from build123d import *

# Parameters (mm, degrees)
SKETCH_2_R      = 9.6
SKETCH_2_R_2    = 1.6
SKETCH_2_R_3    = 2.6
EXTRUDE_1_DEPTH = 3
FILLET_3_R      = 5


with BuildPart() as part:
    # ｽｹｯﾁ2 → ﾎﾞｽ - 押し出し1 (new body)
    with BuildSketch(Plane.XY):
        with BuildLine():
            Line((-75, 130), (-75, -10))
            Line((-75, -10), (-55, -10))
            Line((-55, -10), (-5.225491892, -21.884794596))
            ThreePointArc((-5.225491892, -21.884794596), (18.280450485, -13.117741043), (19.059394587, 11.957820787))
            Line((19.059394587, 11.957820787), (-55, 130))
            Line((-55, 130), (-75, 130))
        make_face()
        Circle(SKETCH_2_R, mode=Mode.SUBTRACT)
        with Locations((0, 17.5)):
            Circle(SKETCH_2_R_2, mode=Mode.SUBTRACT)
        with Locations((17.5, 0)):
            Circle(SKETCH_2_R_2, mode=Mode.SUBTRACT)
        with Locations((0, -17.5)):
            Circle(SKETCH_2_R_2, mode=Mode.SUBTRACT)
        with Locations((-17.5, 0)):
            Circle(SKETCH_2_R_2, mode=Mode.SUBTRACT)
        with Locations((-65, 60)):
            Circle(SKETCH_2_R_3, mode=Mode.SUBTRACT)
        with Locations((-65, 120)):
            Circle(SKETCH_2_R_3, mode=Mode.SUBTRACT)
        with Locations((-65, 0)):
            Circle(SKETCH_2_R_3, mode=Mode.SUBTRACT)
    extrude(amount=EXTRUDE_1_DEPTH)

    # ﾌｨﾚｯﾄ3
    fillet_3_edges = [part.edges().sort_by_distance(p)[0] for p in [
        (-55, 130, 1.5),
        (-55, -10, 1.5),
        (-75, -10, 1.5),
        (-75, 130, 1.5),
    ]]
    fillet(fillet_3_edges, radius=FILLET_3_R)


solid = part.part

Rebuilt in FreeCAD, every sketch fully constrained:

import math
import FreeCAD as App
import Part
import Sketcher
from FreeCAD import Vector
Q = App.Units.Quantity


def edges_at(feature, points):
    """Names of the edges that pass closest to the given points."""
    edges = feature.Shape.Edges
    near = lambda p: min(range(len(edges)), key=lambda i: edges[i].distToShape(Part.Vertex(*p))[0])
    return sorted({f"Edge{near(p) + 1}" for p in points})

doc = App.newDocument("Part")
body = doc.addObject("PartDesign::Body", "Body")

sketch1 = body.newObject("Sketcher::SketchObject", "Sketch")
sketch1.AttachmentSupport = (doc.getObject("XY_Plane"), [""])
sketch1.MapMode = "FlatFace"
sketch1.addGeometry(Part.LineSegment(Vector(-75, 130, 0), Vector(-75, -10, 0)), False)
sketch1.addGeometry(Part.LineSegment(Vector(-75, -10, 0), Vector(-55, -10, 0)), False)
sketch1.addGeometry(Part.LineSegment(Vector(-55, -10, 0), Vector(-5.2, -21.9, 0)), False)
sketch1.addGeometry(Part.ArcOfCircle(Part.Circle(Vector(0, 0, 0), Vector(0, 0, 1), 22.5), math.radians(-103), math.radians(32)), False)
sketch1.addGeometry(Part.LineSegment(Vector(19.1, 12, 0), Vector(-55, 130, 0)), False)
sketch1.addGeometry(Part.LineSegment(Vector(-55, 130, 0), Vector(-75, 130, 0)), False)
sketch1.addGeometry(Part.Circle(Vector(-65, 0, 0), Vector(0, 0, 1), 2.6), False)
sketch1.addGeometry(Part.Circle(Vector(-17.5, 0, 0), Vector(0, 0, 1), 1.6), False)
sketch1.addGeometry(Part.Circle(Vector(0, -17.5, 0), Vector(0, 0, 1), 1.6), False)
sketch1.addGeometry(Part.Circle(Vector(0, 0, 0), Vector(0, 0, 1), 9.6), False)
sketch1.addGeometry(Part.Circle(Vector(17.5, 0, 0), Vector(0, 0, 1), 1.6), False)
sketch1.addGeometry(Part.Circle(Vector(0, 17.5, 0), Vector(0, 0, 1), 1.6), False)
sketch1.addGeometry(Part.Circle(Vector(-65, 60, 0), Vector(0, 0, 1), 2.6), False)
sketch1.addGeometry(Part.Circle(Vector(-65, 120, 0), Vector(0, 0, 1), 2.6), False)
sketch1.addConstraint(Sketcher.Constraint("Coincident", 0, 2, 1, 1))
sketch1.addConstraint(Sketcher.Constraint("Coincident", 1, 2, 2, 1))
sketch1.addConstraint(Sketcher.Constraint("Tangent", 2, 2, 3, 1))
sketch1.addConstraint(Sketcher.Constraint("Tangent", 3, 2, 4, 1))
sketch1.addConstraint(Sketcher.Constraint("Coincident", 4, 2, 5, 1))
sketch1.addConstraint(Sketcher.Constraint("Coincident", 5, 2, 0, 1))
sketch1.addConstraint(Sketcher.Constraint("Vertical", 0))
sketch1.addConstraint(Sketcher.Constraint("Horizontal", 1))
sketch1.addConstraint(Sketcher.Constraint("Horizontal", 5))
sketch1.addConstraint(Sketcher.Constraint("Coincident", 3, 3, -1, 1))
sketch1.addConstraint(Sketcher.Constraint("Coincident", 9, 3, -1, 1))
sketch1.addConstraint(Sketcher.Constraint("Equal", 7, 8))
sketch1.addConstraint(Sketcher.Constraint("Equal", 8, 10))
sketch1.addConstraint(Sketcher.Constraint("Equal", 10, 11))
sketch1.addConstraint(Sketcher.Constraint("Equal", 6, 12))
sketch1.addConstraint(Sketcher.Constraint("Equal", 12, 13))
sketch1.addConstraint(Sketcher.Constraint("Symmetric", 7, 3, 10, 3, -1, 1))
sketch1.addConstraint(Sketcher.Constraint("Symmetric", 8, 3, 11, 3, -1, 1))
sketch1.addConstraint(Sketcher.Constraint("PointOnObject", 6, 3, -1))
sketch1.addConstraint(Sketcher.Constraint("PointOnObject", 7, 3, -1))
sketch1.addConstraint(Sketcher.Constraint("PointOnObject", 8, 3, -2))
sketch1.addConstraint(Sketcher.Constraint("Vertical", 6, 3, 12, 3))
sketch1.addConstraint(Sketcher.Constraint("Vertical", 12, 3, 13, 3))
sketch1.addConstraint(Sketcher.Constraint("Vertical", 1, 2, 4, 2))
sketch1.addConstraint(Sketcher.Constraint("Diameter", 6, Q("5.2 mm")))
sketch1.addConstraint(Sketcher.Constraint("Diameter", 7, Q("3.2 mm")))
sketch1.addConstraint(Sketcher.Constraint("Diameter", 9, Q("19.2 mm")))
sketch1.addConstraint(Sketcher.Constraint("Radius", 3, Q("22.5 mm")))
sketch1.addConstraint(Sketcher.Constraint("DistanceX", 1, 1, 1, 2, Q("20 mm")))
sketch1.addConstraint(Sketcher.Constraint("DistanceY", 0, 2, 0, 1, Q("140 mm")))
sketch1.addConstraint(Sketcher.Constraint("DistanceX", 6, 3, -1, 1, Q("65 mm")))
sketch1.addConstraint(Sketcher.Constraint("DistanceY", -1, 1, 12, 3, Q("60 mm")))
sketch1.addConstraint(Sketcher.Constraint("DistanceY", -1, 1, 13, 3, Q("120 mm")))
sketch1.addConstraint(Sketcher.Constraint("DistanceX", 0, 2, -1, 1, Q("75 mm")))
sketch1.addConstraint(Sketcher.Constraint("DistanceY", 0, 2, -1, 1, Q("10 mm")))
sketch1.addConstraint(Sketcher.Constraint("DistanceX", 7, 3, 10, 3, Q("35 mm")))
sketch1.addConstraint(Sketcher.Constraint("DistanceY", 8, 3, 11, 3, Q("35 mm")))
pad1 = body.newObject("PartDesign::Pad", "Pad")
pad1.Profile = sketch1
pad1.Length = 3
doc.recompute()

fillet = body.newObject("PartDesign::Fillet", "Fillet")
fillet.Base = (pad1, edges_at(pad1, [
    (-55, 130, 1.5),
    (-55, -10, 1.5),
    (-75, -10, 1.5),
    (-75, 130, 1.5),
]))
fillet.Radius = 5

doc.recompute()
